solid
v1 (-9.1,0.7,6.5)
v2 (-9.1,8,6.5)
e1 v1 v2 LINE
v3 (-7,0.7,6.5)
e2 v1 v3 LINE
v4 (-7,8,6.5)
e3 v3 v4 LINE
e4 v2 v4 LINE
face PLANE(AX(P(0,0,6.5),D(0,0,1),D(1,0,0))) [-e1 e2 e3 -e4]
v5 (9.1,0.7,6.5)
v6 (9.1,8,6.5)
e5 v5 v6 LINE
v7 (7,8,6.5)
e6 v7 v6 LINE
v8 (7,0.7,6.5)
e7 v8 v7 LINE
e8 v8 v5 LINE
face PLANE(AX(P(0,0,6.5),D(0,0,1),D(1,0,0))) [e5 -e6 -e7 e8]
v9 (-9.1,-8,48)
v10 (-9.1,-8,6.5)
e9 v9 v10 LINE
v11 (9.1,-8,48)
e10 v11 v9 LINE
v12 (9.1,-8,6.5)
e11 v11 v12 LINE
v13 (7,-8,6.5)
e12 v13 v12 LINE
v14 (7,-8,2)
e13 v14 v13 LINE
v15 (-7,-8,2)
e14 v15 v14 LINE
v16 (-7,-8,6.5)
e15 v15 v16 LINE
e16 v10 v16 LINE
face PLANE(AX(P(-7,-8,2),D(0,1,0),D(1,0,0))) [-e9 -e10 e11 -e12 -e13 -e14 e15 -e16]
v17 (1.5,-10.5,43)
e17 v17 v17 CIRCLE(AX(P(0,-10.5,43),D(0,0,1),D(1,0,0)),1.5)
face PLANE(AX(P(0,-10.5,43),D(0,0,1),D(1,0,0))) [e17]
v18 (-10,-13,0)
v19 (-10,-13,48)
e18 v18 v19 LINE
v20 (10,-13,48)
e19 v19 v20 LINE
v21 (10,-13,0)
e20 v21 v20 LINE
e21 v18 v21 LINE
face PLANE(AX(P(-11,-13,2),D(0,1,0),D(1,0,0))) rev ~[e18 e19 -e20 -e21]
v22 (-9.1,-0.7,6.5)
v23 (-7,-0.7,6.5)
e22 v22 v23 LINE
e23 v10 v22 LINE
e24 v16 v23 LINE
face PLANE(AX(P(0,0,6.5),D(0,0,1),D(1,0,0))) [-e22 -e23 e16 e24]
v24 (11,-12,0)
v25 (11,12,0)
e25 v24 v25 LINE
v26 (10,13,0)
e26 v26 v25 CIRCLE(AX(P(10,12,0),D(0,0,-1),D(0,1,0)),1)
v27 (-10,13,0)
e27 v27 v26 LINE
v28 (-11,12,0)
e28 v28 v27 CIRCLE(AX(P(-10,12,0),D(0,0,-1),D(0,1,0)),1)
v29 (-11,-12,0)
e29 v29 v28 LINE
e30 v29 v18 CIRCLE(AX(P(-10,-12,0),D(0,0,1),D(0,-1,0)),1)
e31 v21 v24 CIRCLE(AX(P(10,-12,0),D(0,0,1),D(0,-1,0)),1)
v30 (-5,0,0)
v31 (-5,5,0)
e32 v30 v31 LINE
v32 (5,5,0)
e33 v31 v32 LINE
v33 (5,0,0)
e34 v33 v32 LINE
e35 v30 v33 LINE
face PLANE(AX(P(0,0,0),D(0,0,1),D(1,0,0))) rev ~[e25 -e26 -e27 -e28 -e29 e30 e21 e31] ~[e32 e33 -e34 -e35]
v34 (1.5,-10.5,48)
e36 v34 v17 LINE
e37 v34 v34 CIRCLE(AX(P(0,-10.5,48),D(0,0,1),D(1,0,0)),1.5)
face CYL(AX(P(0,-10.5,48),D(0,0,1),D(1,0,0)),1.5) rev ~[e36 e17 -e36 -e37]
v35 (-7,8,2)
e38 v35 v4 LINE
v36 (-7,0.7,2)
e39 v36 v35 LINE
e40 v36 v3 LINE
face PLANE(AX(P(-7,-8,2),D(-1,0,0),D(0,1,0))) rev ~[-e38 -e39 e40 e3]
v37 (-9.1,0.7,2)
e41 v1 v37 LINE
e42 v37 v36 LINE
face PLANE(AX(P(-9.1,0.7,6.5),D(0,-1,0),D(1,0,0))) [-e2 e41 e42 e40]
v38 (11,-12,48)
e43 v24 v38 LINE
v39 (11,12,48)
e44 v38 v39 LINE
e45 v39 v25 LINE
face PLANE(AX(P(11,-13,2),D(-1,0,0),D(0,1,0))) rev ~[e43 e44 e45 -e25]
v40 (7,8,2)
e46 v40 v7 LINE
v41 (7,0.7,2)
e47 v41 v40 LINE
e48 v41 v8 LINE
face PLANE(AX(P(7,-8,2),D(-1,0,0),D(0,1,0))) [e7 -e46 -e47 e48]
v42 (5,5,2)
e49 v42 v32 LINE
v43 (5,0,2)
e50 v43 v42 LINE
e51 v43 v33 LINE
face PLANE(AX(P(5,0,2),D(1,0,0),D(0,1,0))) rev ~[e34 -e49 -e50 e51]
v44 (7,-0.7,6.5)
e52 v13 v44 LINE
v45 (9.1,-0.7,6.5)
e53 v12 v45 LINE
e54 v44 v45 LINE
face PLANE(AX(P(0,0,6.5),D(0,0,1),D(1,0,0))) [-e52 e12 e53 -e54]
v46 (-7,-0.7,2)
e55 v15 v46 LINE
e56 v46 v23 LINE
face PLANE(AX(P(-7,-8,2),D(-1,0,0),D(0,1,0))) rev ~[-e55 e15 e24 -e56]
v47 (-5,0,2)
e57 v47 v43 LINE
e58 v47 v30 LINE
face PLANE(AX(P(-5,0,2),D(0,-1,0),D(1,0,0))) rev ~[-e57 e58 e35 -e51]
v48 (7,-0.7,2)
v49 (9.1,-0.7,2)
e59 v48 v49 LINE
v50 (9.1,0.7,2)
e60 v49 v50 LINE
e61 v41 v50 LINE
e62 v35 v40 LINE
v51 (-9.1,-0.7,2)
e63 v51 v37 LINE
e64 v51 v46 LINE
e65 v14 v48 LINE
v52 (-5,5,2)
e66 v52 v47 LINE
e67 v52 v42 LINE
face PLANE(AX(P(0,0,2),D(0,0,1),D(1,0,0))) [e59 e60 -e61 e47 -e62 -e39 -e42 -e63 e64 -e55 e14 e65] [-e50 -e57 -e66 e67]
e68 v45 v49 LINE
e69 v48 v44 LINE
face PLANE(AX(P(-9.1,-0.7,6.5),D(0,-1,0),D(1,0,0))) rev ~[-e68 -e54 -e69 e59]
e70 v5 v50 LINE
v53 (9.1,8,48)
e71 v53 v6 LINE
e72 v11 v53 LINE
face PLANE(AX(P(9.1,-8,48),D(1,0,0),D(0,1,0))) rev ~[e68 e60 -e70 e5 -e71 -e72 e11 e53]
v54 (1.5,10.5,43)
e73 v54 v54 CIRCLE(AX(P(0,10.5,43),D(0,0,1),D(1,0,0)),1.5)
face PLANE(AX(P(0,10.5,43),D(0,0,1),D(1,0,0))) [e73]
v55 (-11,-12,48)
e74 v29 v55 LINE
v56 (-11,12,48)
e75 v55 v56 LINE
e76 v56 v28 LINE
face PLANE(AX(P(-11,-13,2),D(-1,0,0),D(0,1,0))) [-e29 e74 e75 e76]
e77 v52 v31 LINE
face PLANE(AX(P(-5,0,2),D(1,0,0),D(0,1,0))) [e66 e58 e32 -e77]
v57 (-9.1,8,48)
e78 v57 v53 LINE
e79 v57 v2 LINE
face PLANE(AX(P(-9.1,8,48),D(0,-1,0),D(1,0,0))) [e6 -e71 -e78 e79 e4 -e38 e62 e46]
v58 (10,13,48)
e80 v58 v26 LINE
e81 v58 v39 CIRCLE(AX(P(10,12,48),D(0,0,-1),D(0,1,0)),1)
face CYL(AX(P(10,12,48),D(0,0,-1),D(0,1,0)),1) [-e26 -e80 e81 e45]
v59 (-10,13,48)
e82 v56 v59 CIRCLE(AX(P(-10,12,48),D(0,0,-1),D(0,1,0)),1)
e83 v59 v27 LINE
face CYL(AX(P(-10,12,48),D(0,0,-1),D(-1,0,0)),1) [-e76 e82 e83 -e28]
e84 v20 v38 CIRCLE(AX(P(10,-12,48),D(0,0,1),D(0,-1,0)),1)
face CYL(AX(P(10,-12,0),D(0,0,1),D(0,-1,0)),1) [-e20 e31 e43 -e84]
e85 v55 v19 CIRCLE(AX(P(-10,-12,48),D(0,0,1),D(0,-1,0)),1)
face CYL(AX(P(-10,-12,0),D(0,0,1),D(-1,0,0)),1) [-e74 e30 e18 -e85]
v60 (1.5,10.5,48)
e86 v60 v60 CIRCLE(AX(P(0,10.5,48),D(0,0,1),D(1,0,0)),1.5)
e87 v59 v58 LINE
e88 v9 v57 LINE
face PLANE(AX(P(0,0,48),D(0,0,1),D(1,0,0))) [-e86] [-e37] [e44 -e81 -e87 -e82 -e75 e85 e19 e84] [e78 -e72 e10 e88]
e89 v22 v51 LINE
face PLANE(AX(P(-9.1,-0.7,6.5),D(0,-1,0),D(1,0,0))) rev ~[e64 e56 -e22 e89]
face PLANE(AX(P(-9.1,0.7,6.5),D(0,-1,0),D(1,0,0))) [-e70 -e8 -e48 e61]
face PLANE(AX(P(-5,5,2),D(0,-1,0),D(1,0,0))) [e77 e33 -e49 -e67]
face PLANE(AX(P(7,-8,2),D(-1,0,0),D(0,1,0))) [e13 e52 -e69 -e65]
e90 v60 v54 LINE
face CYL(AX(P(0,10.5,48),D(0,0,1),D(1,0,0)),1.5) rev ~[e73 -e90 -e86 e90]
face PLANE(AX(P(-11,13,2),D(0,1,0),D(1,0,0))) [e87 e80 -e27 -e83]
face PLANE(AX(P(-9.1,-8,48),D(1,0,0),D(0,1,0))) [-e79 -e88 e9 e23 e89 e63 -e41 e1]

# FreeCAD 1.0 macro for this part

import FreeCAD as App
import Part
import Sketcher
from FreeCAD import Vector


def edges_at(feature, points):
    """Names of the edges that pass closest to the given points."""
    edges = feature.Shape.Edges
    near = lambda p: min(range(len(edges)), key=lambda i: edges[i].distToShape(Part.Vertex(*p))[0])
    return sorted({f"Edge{near(p) + 1}" for p in points})


def add_polygon(sketch, points):
    """Adds a closed chain of lines whose ends are joined by coincident constraints."""
    first, n = sketch.GeometryCount, len(points)
    for a, b in zip(points, points[1:] + points[:1]):
        sketch.addGeometry(Part.LineSegment(App.Vector(*a, 0), App.Vector(*b, 0)), False)
    for i in range(n):
        sketch.addConstraint(Sketcher.Constraint("Coincident", first + i, 2, first + (i + 1) % n, 1))

doc = App.newDocument("Part")
params = doc.addObject("Spreadsheet::Sheet", "Params")
for row, (alias, value) in enumerate([
    ("sketch1_width", "22 mm"),
    ("sketch1_height", "26 mm"),
    ("pad1_length", "2 mm"),
    ("sketch2_width", "10 mm"),
    ("sketch2_height", "5 mm"),
    ("sketch3_width", "22 mm"),
    ("sketch3_width2", "14 mm"),
    ("sketch3_height", "26 mm"),
    ("sketch3_height2", "16 mm"),
    ("pad2_length", "46 mm"),
    ("sketch4_height", "16 mm"),
    ("sketch4_width", "18.2 mm"),
    ("pocket2_length", "41.5 mm"),
    ("sketch5_width", "18.2 mm"),
    ("sketch5_height", "1.4 mm"),
    ("pocket3_length", "4.5 mm"),
    ("sketch6_diameter", "3 mm"),
    ("pocket4_length", "5 mm"),
    ("fillet_radius", "1 mm"),
], start=1):
    params.set(f"A{row}", alias)
    params.set(f"B{row}", "=" + value)
    params.setAlias(f"B{row}", alias)

body = doc.addObject("PartDesign::Body", "Body")

sketch1 = body.newObject("Sketcher::SketchObject", "Sketch")
sketch1.AttachmentSupport = (doc.getObject("XY_Plane"), [""])
sketch1.MapMode = "FlatFace"
add_polygon(sketch1, [(-11, 13), (-11, -13), (11, -13), (11, 13)])
sketch1.addConstraint([
    Sketcher.Constraint("Vertical", 0),
    Sketcher.Constraint("Horizontal", 1),
    Sketcher.Constraint("Vertical", 2),
    Sketcher.Constraint("Horizontal", 3),
    Sketcher.Constraint("Symmetric", 0, 2, 2, 2, -1, 1),
    Sketcher.Constraint("DistanceX", 1, 1, 1, 2, 22.0),
    Sketcher.Constraint("DistanceY", 0, 2, 0, 1, 26.0),
])
sketch1.setExpression("Constraints[9]", "Params.sketch1_width")
sketch1.setExpression("Constraints[10]", "Params.sketch1_height")
pad1 = body.newObject("PartDesign::Pad", "Pad")
pad1.Profile = sketch1
pad1.setExpression("Length", "Params.pad1_length")

sketch2 = body.newObject("Sketcher::SketchObject", "Sketch001")
sketch2.AttachmentSupport = (doc.getObject("XY_Plane"), [""])
sketch2.MapMode = "FlatFace"
sketch2.AttachmentOffset = App.Placement(Vector(0, 0, 2), App.Rotation())
add_polygon(sketch2, [(-5, 5), (-5, 0), (5, 0), (5, 5)])
sketch2.addConstraint([
    Sketcher.Constraint("Vertical", 0),
    Sketcher.Constraint("Horizontal", 1),
    Sketcher.Constraint("Vertical", 2),
    Sketcher.Constraint("Horizontal", 3),
    Sketcher.Constraint("Symmetric", 0, 2, 1, 2, -1, 1),
    Sketcher.Constraint("DistanceX", 1, 1, 1, 2, 10.0),
    Sketcher.Constraint("DistanceY", 0, 2, 0, 1, 5.0),
])
sketch2.setExpression("Constraints[9]", "Params.sketch2_width")
sketch2.setExpression("Constraints[10]", "Params.sketch2_height")
pocket1 = body.newObject("PartDesign::Pocket", "Pocket")
pocket1.Profile = sketch2
pocket1.Type = "ThroughAll"

sketch3 = body.newObject("Sketcher::SketchObject", "Sketch002")
sketch3.AttachmentSupport = (doc.getObject("XY_Plane"), [""])
sketch3.MapMode = "FlatFace"
sketch3.AttachmentOffset = App.Placement(Vector(0, 0, 2), App.Rotation())
add_polygon(sketch3, [(-11, 13), (-11, -13), (11, -13), (11, 13)])
add_polygon(sketch3, [(7, -8), (-7, -8), (-7, 8), (7, 8)])
sketch3.addConstraint([
    Sketcher.Constraint("Vertical", 0),
    Sketcher.Constraint("Horizontal", 1),
    Sketcher.Constraint("Vertical", 2),
    Sketcher.Constraint("Horizontal", 3),
    Sketcher.Constraint("Horizontal", 4),
    Sketcher.Constraint("Vertical", 5),
    Sketcher.Constraint("Horizontal", 6),
    Sketcher.Constraint("Vertical", 7),
    Sketcher.Constraint("Symmetric", 0, 2, 2, 2, -1, 1),
    Sketcher.Constraint("Symmetric", 4, 2, 6, 2, -1, 1),
    Sketcher.Constraint("DistanceX", 1, 1, 1, 2, 22.0),
    Sketcher.Constraint("DistanceX", 4, 2, 4, 1, 14.0),
    Sketcher.Constraint("DistanceY", 0, 2, 0, 1, 26.0),
    Sketcher.Constraint("DistanceY", 5, 1, 5, 2, 16.0),
])
sketch3.setExpression("Constraints[18]", "Params.sketch3_width")
sketch3.setExpression("Constraints[19]", "Params.sketch3_width2")
sketch3.setExpression("Constraints[20]", "Params.sketch3_height")
sketch3.setExpression("Constraints[21]", "Params.sketch3_height2")
pad2 = body.newObject("PartDesign::Pad", "Pad001")
pad2.Profile = sketch3
pad2.setExpression("Length", "Params.pad2_length")

sketch4 = body.newObject("Sketcher::SketchObject", "Sketch003")
sketch4.AttachmentSupport = (doc.getObject("XY_Plane"), [""])
sketch4.MapMode = "FlatFace"
sketch4.AttachmentOffset = App.Placement(Vector(0, 0, 48), App.Rotation())
add_polygon(sketch4, [(-9, 8), (-9, -8), (9, -8), (9, 8)])
sketch4.addConstraint([
    Sketcher.Constraint("Vertical", 0),
    Sketcher.Constraint("Horizontal", 1),
    Sketcher.Constraint("Vertical", 2),
    Sketcher.Constraint("Horizontal", 3),
    Sketcher.Constraint("Symmetric", 0, 2, 2, 2, -1, 1),
    Sketcher.Constraint("DistanceY", 0, 2, 0, 1, 16.0),
    Sketcher.Constraint("DistanceX", 1, 1, 1, 2, 18.2),
])
sketch4.setExpression("Constraints[9]", "Params.sketch4_height")
sketch4.setExpression("Constraints[10]", "Params.sketch4_width")
pocket2 = body.newObject("PartDesign::Pocket", "Pocket001")
pocket2.Profile = sketch4
pocket2.setExpression("Length", "Params.pocket2_length")

sketch5 = body.newObject("Sketcher::SketchObject", "Sketch004")
sketch5.AttachmentSupport = (doc.getObject("XY_Plane"), [""])
sketch5.MapMode = "FlatFace"
sketch5.AttachmentOffset = App.Placement(Vector(0, 0, 6.5), App.Rotation())
add_polygon(sketch5, [(-9.1, 0.7), (-9.1, -0.7), (9.1, -0.7), (9.1, 0.7)])
sketch5.addConstraint([
    Sketcher.Constraint("Vertical", 0),
    Sketcher.Constraint("Horizontal", 1),
    Sketcher.Constraint("Vertical", 2),
    Sketcher.Constraint("Horizontal", 3),
    Sketcher.Constraint("Symmetric", 0, 2, 2, 2, -1, 1),
    Sketcher.Constraint("DistanceX", 1, 1, 1, 2, 18.2),
    Sketcher.Constraint("DistanceY", 0, 2, 0, 1, 1.4),
])
sketch5.setExpression("Constraints[9]", "Params.sketch5_width")
sketch5.setExpression("Constraints[10]", "Params.sketch5_height")
pocket3 = body.newObject("PartDesign::Pocket", "Pocket002")
pocket3.Profile = sketch5
pocket3.setExpression("Length", "Params.pocket3_length")

sketch6 = body.newObject("Sketcher::SketchObject", "Sketch005")
sketch6.AttachmentSupport = (doc.getObject("XY_Plane"), [""])
sketch6.MapMode = "FlatFace"
sketch6.AttachmentOffset = App.Placement(Vector(0, 0, 48), App.Rotation())
sketch6.addGeometry([
    Part.Circle(Vector(0, 10.5, 0), Vector(0, 0, 1), 1.5),
    Part.Circle(Vector(0, -10.5, 0), Vector(0, 0, 1), 1.5),
], False)
sketch6.addConstraint([
    Sketcher.Constraint("Equal", 0, 1),
    Sketcher.Constraint("Symmetric", 0, 3, 1, 3, -1, 1),
    Sketcher.Constraint("PointOnObject", 0, 3, -2),
    Sketcher.Constraint("Diameter", 0, 3.0),
    Sketcher.Constraint("DistanceY", 1, 3, 0, 3, 21.0),
])
sketch6.setExpression("Constraints[3]", "Params.sketch6_diameter")
pocket4 = body.newObject("PartDesign::Pocket", "Pocket003")
pocket4.Profile = sketch6
pocket4.setExpression("Length", "Params.pocket4_length")
doc.recompute()

fillet = body.newObject("PartDesign::Fillet", "Fillet")
fillet.Base = (pocket4, edges_at(pocket4, [
    (-11, 13, 24),
    (-11, -13, 24),
    (11, 13, 24),
    (11, -13, 24),
    (11, -13, 24),
    (11, 13, 24),
    (-11, 13, 24),
    (-11, -13, 24),
]))
fillet.setExpression("Radius", "Params.fillet_radius")

doc.recompute()
